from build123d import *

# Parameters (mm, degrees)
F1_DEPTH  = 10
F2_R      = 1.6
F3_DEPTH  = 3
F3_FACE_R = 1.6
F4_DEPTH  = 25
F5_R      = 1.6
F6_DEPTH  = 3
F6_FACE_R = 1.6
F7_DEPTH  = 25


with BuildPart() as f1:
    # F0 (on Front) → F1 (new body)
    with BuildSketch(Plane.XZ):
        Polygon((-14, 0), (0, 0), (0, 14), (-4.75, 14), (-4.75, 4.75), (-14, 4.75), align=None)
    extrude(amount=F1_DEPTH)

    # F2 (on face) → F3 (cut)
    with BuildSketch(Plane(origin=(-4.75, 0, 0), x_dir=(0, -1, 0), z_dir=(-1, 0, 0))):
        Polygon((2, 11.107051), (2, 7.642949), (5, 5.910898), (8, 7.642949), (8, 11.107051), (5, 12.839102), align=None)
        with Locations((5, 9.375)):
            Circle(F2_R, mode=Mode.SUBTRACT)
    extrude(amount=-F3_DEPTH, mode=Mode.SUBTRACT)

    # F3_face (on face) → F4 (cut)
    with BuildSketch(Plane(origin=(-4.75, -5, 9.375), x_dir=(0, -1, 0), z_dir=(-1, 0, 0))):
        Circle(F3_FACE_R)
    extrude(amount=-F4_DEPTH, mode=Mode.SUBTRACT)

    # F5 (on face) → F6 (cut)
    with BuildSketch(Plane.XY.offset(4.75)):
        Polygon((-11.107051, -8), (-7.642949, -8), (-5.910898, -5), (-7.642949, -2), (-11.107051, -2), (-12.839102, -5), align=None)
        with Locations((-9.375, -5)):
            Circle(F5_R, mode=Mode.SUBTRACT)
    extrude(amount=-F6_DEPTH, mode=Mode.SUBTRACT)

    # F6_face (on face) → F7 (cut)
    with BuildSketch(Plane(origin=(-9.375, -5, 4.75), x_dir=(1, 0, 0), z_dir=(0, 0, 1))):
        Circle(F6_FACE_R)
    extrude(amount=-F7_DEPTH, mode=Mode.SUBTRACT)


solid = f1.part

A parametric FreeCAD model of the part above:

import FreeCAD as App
import Part
import Sketcher
Q = App.Units.Quantity

doc = App.newDocument("Part")
body = doc.addObject("PartDesign::Body", "Body")

sketch1 = body.newObject("Sketcher::SketchObject", "Sketch")
sketch1.AttachmentSupport = (doc.getObject("XZ_Plane"), [""])
sketch1.MapMode = "FlatFace"
sketch1.addGeometry([
    Part.LineSegment(App.Vector(-14, 0, 0), App.Vector(0, 0, 0)),
    Part.LineSegment(App.Vector(0, 0, 0), App.Vector(0, 14, 0)),
    Part.LineSegment(App.Vector(0, 14, 0), App.Vector(-4.8, 14, 0)),
    Part.LineSegment(App.Vector(-4.8, 14, 0), App.Vector(-4.8, 4.8, 0)),
    Part.LineSegment(App.Vector(-4.8, 4.8, 0), App.Vector(-14, 4.8, 0)),
    Part.LineSegment(App.Vector(-14, 4.8, 0), App.Vector(-14, 0, 0)),
], False)
sketch1.addConstraint([
    Sketcher.Constraint("Coincident", 0, 2, 1, 1),
    Sketcher.Constraint("Coincident", 1, 2, 2, 1),
    Sketcher.Constraint("Coincident", 2, 2, 3, 1),
    Sketcher.Constraint("Coincident", 3, 2, 4, 1),
    Sketcher.Constraint("Coincident", 4, 2, 5, 1),
    Sketcher.Constraint("Coincident", 5, 2, 0, 1),
    Sketcher.Constraint("Horizontal", 0),
    Sketcher.Constraint("Vertical", 1),
    Sketcher.Constraint("Horizontal", 2),
    Sketcher.Constraint("Vertical", 3),
    Sketcher.Constraint("Horizontal", 4),
    Sketcher.Constraint("Vertical", 5),
    Sketcher.Constraint("Coincident", 0, 2, -1, 1),
    Sketcher.Constraint("Equal", 0, 1),
    Sketcher.Constraint("Equal", 4, 3),
    Sketcher.Constraint("DistanceX", 0, 1, 0, 2, 14.0),
    Sketcher.Constraint("DistanceX", 2, 2, 2, 1, 4.75),
])
pad1 = body.newObject("PartDesign::Pad", "Pad")
pad1.Profile = sketch1
pad1.Length = 10

sketch2 = body.newObject("Sketcher::SketchObject", "Sketch001")
sketch2.AttachmentSupport = (doc.getObject("YZ_Plane"), [""])
sketch2.MapMode = "FlatFace"
sketch2.AttachmentOffset = App.Placement(App.Vector(0, 0, -4.75), App.Rotation())
sketch2.addGeometry([
    Part.LineSegment(App.Vector(-2, 11.1, 0), App.Vector(-2, 7.6, 0)),
    Part.LineSegment(App.Vector(-2, 7.6, 0), App.Vector(-5, 5.9, 0)),
    Part.LineSegment(App.Vector(-5, 5.9, 0), App.Vector(-8, 7.6, 0)),
    Part.LineSegment(App.Vector(-8, 7.6, 0), App.Vector(-8, 11.1, 0)),
    Part.LineSegment(App.Vector(-8, 11.1, 0), App.Vector(-5, 12.8, 0)),
    Part.LineSegment(App.Vector(-5, 12.8, 0), App.Vector(-2, 11.1, 0)),
    Part.Circle(App.Vector(-5, 9.4, 0), App.Vector(0, 0, 1), 1.6),
], False)
sketch2.addConstraint([
    Sketcher.Constraint("Coincident", 0, 2, 1, 1),
    Sketcher.Constraint("Coincident", 1, 2, 2, 1),
    Sketcher.Constraint("Coincident", 2, 2, 3, 1),
    Sketcher.Constraint("Coincident", 3, 2, 4, 1),
    Sketcher.Constraint("Coincident", 4, 2, 5, 1),
    Sketcher.Constraint("Coincident", 5, 2, 0, 1),
    Sketcher.Constraint("Vertical", 0),
    Sketcher.Constraint("Vertical", 3),
    Sketcher.Constraint("Parallel", 1, 4),
    Sketcher.Constraint("Parallel", 2, 5),
    Sketcher.Constraint("Horizontal", 0, 2, 2, 2),
    Sketcher.Constraint("Horizontal", 3, 2, 5, 2),
    Sketcher.Constraint("Vertical", 6, 3, 1, 2),
    Sketcher.Constraint("Vertical", 1, 2, 4, 2),
    Sketcher.Constraint("Diameter", 6, 3.2),
    Sketcher.Constraint("Angle", 1, Q("-149.999997 deg")),
    Sketcher.Constraint("DistanceX", 6, 3, -1, 1, 5.0),
    Sketcher.Constraint("DistanceX", 0, 2, -1, 1, 2.0),
    Sketcher.Constraint("DistanceY", -1, 1, 6, 3, 9.375),
    Sketcher.Constraint("DistanceY", -1, 1, 1, 2, 5.910898),
    Sketcher.Constraint("DistanceY", 0, 2, 0, 1, 3.464102),
])
pocket1 = body.newObject("PartDesign::Pocket", "Pocket")
pocket1.Profile = sketch2
pocket1.Length = 3
pocket1.Reversed = True

sketch3 = body.newObject("Sketcher::SketchObject", "Sketch002")
sketch3.AttachmentSupport = (doc.getObject("YZ_Plane"), [""])
sketch3.MapMode = "FlatFace"
sketch3.AttachmentOffset = App.Placement(App.Vector(0, 0, -4.75), App.Rotation())
sketch3.addGeometry(Part.Circle(App.Vector(-5, 9.4, 0), App.Vector(0, 0, 1), 1.6), False)
sketch3.addConstraint([
    Sketcher.Constraint("Diameter", 0, 3.2),
    Sketcher.Constraint("DistanceX", 0, 3, -1, 1, 5.0),
    Sketcher.Constraint("DistanceY", -1, 1, 0, 3, 9.375),
])
pocket2 = body.newObject("PartDesign::Pocket", "Pocket001")
pocket2.Profile = sketch3
pocket2.Length = 25
pocket2.Reversed = True

sketch4 = body.newObject("Sketcher::SketchObject", "Sketch003")
sketch4.AttachmentSupport = (doc.getObject("XY_Plane"), [""])
sketch4.MapMode = "FlatFace"
sketch4.AttachmentOffset = App.Placement(App.Vector(0, 0, 4.75), App.Rotation())
sketch4.addGeometry([
    Part.LineSegment(App.Vector(-11.1, -8, 0), App.Vector(-7.6, -8, 0)),
    Part.LineSegment(App.Vector(-7.6, -8, 0), App.Vector(-5.9, -5, 0)),
    Part.LineSegment(App.Vector(-5.9, -5, 0), App.Vector(-7.6, -2, 0)),
    Part.LineSegment(App.Vector(-7.6, -2, 0), App.Vector(-11.1, -2, 0)),
    Part.LineSegment(App.Vector(-11.1, -2, 0), App.Vector(-12.8, -5, 0)),
    Part.LineSegment(App.Vector(-12.8, -5, 0), App.Vector(-11.1, -8, 0)),
    Part.Circle(App.Vector(-9.4, -5, 0), App.Vector(0, 0, 1), 1.6),
], False)
sketch4.addConstraint([
    Sketcher.Constraint("Coincident", 0, 2, 1, 1),
    Sketcher.Constraint("Coincident", 1, 2, 2, 1),
    Sketcher.Constraint("Coincident", 2, 2, 3, 1),
    Sketcher.Constraint("Coincident", 3, 2, 4, 1),
    Sketcher.Constraint("Coincident", 4, 2, 5, 1),
    Sketcher.Constraint("Coincident", 5, 2, 0, 1),
    Sketcher.Constraint("Horizontal", 0),
    Sketcher.Constraint("Horizontal", 3),
    Sketcher.Constraint("Parallel", 1, 4),
    Sketcher.Constraint("Parallel", 2, 5),
    Sketcher.Constraint("Horizontal", 6, 3, 1, 2),
    Sketcher.Constraint("Horizontal", 1, 2, 4, 2),
    Sketcher.Constraint("Vertical", 0, 2, 2, 2),
    Sketcher.Constraint("Vertical", 3, 2, 5, 2),
    Sketcher.Constraint("Diameter", 6, 3.2),
    Sketcher.Constraint("Angle", 1, Q("59.999997 deg")),
    Sketcher.Constraint("DistanceY", 6, 3, -1, 1, 5.0),
    Sketcher.Constraint("DistanceY", 0, 2, -1, 1, 8.0),
    Sketcher.Constraint("DistanceX", 6, 3, -1, 1, 9.375),
    Sketcher.Constraint("DistanceX", 1, 2, -1, 1, 5.910898),
    Sketcher.Constraint("DistanceX", 0, 1, 0, 2, 3.464102),
])
pocket3 = body.newObject("PartDesign::Pocket", "Pocket002")
pocket3.Profile = sketch4
pocket3.Length = 3

sketch5 = body.newObject("Sketcher::SketchObject", "Sketch004")
sketch5.AttachmentSupport = (doc.getObject("XY_Plane"), [""])
sketch5.MapMode = "FlatFace"
sketch5.AttachmentOffset = App.Placement(App.Vector(0, 0, 4.75), App.Rotation())
sketch5.addGeometry(Part.Circle(App.Vector(-9.4, -5, 0), App.Vector(0, 0, 1), 1.6), False)
sketch5.addConstraint([
    Sketcher.Constraint("Diameter", 0, 3.2),
    Sketcher.Constraint("DistanceY", 0, 3, -1, 1, 5.0),
    Sketcher.Constraint("DistanceX", 0, 3, -1, 1, 9.375),
])
pocket4 = body.newObject("PartDesign::Pocket", "Pocket003")
pocket4.Profile = sketch5
pocket4.Length = 25

doc.recompute()
